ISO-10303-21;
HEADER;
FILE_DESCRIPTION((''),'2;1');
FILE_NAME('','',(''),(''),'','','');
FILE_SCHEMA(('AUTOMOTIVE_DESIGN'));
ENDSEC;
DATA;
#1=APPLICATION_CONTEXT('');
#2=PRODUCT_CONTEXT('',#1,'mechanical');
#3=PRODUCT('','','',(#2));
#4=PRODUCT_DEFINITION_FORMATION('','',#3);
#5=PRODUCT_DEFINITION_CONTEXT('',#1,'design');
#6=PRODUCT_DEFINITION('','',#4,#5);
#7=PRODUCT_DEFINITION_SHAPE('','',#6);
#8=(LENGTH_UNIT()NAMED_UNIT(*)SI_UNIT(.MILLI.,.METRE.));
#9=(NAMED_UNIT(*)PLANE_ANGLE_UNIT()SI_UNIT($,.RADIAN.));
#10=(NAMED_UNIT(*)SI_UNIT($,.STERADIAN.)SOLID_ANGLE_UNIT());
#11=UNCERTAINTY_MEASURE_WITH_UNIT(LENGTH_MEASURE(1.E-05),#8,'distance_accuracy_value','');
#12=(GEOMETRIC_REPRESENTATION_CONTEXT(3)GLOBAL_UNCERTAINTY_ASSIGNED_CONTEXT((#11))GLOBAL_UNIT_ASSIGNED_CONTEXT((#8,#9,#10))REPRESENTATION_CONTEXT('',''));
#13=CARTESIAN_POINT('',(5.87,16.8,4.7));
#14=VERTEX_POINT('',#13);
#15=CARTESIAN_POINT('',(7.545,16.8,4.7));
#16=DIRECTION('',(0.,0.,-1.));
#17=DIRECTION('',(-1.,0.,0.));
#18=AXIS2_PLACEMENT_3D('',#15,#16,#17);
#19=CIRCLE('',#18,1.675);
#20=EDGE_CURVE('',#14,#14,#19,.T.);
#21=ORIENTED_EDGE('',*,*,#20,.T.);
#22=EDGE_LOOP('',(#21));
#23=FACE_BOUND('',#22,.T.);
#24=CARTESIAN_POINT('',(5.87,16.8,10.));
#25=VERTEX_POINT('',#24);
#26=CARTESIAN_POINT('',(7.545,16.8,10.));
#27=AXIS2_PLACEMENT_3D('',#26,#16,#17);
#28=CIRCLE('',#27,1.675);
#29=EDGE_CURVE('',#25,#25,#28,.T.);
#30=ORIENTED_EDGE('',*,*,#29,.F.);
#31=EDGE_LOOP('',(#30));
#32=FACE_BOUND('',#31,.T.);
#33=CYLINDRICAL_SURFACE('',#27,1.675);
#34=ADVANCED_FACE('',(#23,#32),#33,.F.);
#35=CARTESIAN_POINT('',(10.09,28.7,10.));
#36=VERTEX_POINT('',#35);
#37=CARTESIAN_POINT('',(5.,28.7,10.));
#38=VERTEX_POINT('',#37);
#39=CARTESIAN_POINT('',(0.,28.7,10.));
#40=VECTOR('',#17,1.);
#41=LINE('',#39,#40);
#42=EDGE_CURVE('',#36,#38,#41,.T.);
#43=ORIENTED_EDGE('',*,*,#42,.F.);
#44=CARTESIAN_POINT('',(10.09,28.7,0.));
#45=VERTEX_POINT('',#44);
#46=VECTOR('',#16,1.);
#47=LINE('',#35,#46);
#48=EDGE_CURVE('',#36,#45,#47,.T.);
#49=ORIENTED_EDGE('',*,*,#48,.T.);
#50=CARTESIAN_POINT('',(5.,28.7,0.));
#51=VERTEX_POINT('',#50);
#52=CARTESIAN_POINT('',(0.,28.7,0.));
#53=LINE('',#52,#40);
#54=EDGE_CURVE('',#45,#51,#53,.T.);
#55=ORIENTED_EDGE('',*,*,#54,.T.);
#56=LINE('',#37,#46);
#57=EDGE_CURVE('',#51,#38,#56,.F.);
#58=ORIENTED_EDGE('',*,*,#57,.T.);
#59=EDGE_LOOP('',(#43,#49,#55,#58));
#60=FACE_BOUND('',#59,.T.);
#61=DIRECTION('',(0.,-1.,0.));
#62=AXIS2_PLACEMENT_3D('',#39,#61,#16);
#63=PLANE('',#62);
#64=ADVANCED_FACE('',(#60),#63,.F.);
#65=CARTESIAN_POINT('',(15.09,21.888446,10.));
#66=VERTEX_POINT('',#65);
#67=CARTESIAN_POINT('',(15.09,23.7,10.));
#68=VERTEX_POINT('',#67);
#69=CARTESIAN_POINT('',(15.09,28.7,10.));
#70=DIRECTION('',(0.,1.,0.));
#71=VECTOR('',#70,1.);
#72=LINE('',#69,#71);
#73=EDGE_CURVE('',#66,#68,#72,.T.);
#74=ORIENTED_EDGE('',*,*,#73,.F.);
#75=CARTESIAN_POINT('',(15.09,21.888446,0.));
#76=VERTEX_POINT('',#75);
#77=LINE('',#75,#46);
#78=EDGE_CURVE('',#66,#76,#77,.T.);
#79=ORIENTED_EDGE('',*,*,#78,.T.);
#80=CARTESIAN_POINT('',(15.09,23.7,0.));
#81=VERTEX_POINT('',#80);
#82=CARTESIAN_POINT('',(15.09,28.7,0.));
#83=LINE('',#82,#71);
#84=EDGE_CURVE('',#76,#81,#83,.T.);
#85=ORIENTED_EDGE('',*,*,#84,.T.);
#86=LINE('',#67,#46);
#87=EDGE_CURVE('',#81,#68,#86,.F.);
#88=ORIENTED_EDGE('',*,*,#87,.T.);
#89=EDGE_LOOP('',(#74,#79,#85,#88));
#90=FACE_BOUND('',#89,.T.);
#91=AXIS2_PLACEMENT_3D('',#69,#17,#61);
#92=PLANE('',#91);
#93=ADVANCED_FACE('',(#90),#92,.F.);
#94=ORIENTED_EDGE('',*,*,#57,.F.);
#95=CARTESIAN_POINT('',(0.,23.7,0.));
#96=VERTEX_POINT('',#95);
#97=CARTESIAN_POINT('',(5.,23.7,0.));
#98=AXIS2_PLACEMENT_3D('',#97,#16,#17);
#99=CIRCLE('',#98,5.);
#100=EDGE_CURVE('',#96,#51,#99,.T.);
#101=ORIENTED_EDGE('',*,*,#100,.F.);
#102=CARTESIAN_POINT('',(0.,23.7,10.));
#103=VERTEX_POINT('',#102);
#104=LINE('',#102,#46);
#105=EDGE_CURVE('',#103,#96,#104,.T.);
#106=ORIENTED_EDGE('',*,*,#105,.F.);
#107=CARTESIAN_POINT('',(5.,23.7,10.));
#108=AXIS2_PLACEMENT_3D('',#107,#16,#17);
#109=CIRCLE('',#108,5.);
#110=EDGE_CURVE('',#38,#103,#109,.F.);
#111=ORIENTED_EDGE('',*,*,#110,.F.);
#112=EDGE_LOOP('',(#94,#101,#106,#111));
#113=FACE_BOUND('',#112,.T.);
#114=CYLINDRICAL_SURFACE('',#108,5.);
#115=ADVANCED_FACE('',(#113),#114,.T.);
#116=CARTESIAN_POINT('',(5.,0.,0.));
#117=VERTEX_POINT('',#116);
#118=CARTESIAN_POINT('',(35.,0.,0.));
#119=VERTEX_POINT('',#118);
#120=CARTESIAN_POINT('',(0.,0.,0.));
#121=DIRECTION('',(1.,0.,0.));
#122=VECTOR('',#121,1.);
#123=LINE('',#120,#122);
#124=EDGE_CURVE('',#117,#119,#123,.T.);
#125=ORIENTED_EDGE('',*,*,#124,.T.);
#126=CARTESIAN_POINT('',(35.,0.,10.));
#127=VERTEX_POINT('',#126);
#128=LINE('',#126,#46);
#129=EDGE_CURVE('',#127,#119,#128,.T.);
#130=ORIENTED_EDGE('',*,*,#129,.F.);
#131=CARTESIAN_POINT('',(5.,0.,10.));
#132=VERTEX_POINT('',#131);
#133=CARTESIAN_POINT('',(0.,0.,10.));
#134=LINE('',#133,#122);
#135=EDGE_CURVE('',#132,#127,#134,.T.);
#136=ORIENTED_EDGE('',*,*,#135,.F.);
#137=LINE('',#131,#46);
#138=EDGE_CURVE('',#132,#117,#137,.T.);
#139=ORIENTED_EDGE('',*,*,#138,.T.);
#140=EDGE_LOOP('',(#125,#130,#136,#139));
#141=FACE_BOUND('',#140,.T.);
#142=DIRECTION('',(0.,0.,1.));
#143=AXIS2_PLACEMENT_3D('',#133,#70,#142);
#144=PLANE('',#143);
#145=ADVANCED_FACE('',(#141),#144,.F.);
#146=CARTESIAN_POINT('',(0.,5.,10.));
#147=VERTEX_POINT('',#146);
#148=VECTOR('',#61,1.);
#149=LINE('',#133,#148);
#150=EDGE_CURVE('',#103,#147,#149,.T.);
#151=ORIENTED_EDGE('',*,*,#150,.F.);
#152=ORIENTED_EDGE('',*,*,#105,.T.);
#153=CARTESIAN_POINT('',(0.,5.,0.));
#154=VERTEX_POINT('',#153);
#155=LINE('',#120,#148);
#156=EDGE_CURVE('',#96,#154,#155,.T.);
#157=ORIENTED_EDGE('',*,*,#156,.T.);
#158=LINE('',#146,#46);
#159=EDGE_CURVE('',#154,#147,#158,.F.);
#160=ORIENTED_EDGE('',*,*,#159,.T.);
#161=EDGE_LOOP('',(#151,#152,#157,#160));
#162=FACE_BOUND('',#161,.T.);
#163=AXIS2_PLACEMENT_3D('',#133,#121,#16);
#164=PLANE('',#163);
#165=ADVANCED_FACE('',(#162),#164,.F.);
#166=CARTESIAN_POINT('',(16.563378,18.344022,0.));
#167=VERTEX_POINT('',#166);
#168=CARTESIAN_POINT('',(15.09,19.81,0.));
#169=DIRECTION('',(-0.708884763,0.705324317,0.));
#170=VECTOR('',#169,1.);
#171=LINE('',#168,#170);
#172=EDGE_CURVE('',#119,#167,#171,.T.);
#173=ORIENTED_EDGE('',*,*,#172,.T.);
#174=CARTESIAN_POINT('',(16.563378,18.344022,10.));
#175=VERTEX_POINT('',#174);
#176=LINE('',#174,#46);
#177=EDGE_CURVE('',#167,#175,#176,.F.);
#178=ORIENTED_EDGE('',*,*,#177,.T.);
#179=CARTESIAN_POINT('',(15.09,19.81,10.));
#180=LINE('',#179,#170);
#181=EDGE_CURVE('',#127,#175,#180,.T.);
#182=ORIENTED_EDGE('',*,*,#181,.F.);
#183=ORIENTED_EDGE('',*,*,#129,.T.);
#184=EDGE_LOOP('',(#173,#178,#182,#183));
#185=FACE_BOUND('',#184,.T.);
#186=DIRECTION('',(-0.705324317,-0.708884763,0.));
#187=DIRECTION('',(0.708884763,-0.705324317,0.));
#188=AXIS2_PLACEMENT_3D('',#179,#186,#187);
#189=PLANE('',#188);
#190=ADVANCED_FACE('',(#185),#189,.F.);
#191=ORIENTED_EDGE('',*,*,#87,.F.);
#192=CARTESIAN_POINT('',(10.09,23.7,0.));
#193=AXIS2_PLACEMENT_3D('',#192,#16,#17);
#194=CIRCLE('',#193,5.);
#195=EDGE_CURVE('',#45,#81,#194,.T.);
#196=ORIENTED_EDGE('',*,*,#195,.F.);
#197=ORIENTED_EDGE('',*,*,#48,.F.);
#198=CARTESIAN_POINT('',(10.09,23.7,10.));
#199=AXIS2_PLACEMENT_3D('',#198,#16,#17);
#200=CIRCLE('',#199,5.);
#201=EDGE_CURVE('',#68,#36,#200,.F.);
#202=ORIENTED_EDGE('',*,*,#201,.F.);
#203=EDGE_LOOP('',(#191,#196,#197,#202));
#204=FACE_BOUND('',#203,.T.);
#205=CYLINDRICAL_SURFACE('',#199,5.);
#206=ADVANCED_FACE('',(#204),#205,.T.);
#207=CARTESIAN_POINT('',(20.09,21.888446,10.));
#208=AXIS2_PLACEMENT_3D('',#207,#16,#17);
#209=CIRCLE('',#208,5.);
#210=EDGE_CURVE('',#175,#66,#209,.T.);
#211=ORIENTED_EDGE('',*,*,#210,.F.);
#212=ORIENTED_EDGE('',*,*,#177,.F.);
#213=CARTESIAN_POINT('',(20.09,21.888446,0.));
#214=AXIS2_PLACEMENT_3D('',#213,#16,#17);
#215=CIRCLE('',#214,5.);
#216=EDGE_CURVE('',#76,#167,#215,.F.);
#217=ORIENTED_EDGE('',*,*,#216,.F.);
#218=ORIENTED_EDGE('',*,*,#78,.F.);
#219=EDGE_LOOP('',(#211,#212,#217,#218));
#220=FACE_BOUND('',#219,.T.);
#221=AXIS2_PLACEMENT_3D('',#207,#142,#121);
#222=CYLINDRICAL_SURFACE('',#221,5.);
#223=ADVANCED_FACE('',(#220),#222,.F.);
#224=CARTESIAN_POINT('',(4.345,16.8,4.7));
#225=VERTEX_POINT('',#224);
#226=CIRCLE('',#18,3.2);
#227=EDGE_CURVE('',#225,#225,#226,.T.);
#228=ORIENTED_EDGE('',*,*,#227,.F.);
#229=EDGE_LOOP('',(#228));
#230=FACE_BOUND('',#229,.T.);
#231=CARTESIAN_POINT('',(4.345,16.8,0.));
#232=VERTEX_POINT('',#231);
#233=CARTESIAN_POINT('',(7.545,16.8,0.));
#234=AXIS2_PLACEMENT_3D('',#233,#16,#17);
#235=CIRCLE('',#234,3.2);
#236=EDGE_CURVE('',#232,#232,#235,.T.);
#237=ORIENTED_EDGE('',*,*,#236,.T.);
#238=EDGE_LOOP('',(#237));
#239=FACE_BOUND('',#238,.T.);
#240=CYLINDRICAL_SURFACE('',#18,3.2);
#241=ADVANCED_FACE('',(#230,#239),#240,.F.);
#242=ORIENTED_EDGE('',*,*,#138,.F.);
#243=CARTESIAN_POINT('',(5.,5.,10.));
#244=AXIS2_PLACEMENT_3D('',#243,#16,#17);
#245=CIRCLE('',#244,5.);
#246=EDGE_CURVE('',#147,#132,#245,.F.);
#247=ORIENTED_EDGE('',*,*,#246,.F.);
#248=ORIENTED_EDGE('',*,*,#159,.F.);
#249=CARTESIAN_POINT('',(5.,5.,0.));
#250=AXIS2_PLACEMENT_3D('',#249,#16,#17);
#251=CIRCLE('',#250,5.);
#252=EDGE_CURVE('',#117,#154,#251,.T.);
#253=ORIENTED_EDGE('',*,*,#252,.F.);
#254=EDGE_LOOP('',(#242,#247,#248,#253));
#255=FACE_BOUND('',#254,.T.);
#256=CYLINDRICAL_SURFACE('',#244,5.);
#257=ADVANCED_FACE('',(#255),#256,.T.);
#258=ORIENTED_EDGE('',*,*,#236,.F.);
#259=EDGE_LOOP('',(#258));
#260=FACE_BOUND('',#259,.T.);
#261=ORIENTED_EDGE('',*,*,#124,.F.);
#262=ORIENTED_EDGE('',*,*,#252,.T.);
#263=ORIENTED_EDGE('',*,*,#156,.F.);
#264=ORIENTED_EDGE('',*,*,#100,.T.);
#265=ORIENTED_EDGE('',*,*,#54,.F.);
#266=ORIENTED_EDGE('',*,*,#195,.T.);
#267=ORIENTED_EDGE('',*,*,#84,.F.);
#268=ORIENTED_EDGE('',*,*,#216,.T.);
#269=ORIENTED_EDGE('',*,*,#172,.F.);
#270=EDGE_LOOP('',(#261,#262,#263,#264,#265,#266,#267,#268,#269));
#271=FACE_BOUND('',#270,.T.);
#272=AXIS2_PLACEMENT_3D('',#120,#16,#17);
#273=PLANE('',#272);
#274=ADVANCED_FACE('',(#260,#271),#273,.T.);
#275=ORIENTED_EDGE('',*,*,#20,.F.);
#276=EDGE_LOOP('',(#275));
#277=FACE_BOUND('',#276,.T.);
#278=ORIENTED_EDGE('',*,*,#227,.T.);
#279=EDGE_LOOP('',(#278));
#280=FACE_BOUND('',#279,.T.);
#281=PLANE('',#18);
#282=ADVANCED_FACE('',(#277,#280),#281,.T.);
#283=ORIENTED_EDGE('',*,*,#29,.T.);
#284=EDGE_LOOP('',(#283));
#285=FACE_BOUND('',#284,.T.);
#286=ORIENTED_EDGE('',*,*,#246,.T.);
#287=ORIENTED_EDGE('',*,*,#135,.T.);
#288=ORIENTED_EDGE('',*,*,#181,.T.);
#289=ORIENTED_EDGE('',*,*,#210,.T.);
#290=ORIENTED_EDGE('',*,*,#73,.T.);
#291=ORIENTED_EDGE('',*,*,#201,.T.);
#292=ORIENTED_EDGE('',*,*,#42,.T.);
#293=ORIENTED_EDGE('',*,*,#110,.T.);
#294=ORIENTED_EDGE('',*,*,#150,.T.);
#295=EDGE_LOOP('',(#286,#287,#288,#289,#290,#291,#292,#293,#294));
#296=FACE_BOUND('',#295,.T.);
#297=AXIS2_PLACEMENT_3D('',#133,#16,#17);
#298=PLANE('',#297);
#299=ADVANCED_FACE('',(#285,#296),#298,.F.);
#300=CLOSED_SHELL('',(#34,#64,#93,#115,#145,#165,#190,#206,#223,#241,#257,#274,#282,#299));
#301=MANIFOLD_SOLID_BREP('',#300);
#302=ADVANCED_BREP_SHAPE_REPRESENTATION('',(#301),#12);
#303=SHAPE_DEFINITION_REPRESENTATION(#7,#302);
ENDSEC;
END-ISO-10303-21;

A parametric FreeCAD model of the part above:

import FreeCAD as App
import Part
import Sketcher

V = App.Vector
Q = App.Units.Quantity


def edges_at(feature, points):
    """Names of the edges that pass closest to the given points."""
    edges = feature.Shape.Edges
    near = lambda p: min(range(len(edges)), key=lambda i: edges[i].distToShape(Part.Vertex(*p))[0])
    return sorted({f"Edge{near(p) + 1}" for p in points})

doc = App.newDocument("Part")
body = doc.addObject("PartDesign::Body", "Body")

# Sketch on XY plane
sketch1 = body.newObject("Sketcher::SketchObject", "Sketch")
sketch1.AttachmentSupport = (doc.getObject("XY_Plane"), [""])
sketch1.MapMode = "FlatFace"
sketch1.addGeometry(Part.LineSegment(V(0, 0, 0), V(35, 0, 0)), False)
sketch1.addGeometry(Part.LineSegment(V(35, 0, 0), V(15, 20, 0)), False)
sketch1.addGeometry(Part.LineSegment(V(15, 20, 0), V(15, 29, 0)), False)
sketch1.addGeometry(Part.LineSegment(V(15, 29, 0), V(0, 29, 0)), False)
sketch1.addGeometry(Part.LineSegment(V(0, 29, 0), V(0, 0, 0)), False)
sketch1.addConstraint(Sketcher.Constraint("Coincident", 0, 2, 1, 1))
sketch1.addConstraint(Sketcher.Constraint("Coincident", 1, 2, 2, 1))
sketch1.addConstraint(Sketcher.Constraint("Coincident", 2, 2, 3, 1))
sketch1.addConstraint(Sketcher.Constraint("Coincident", 3, 2, 4, 1))
sketch1.addConstraint(Sketcher.Constraint("Coincident", 4, 2, 0, 1))
sketch1.addConstraint(Sketcher.Constraint("Horizontal", 0))
sketch1.addConstraint(Sketcher.Constraint("Vertical", 2))
sketch1.addConstraint(Sketcher.Constraint("Horizontal", 3))
sketch1.addConstraint(Sketcher.Constraint("Vertical", 4))
sketch1.addConstraint(Sketcher.Constraint("Coincident", 4, 2, -1, 1))
sketch1.addConstraint(Sketcher.Constraint("DistanceX", 0, 1, 0, 2, Q("35 mm")))
sketch1.addConstraint(Sketcher.Constraint("DistanceY", 4, 2, 4, 1, Q("28.7 mm")))
sketch1.addConstraint(Sketcher.Constraint("DistanceX", 3, 2, 3, 1, Q("15.09 mm")))
sketch1.addConstraint(Sketcher.Constraint("DistanceY", 2, 1, 2, 2, Q("8.89 mm")))
pad1 = body.newObject("PartDesign::Pad", "Pad")
pad1.Profile = sketch1
pad1.Length = 10
doc.recompute()

fillet = body.newObject("PartDesign::Fillet", "Fillet")
fillet.Base = (pad1, edges_at(pad1, [
    (0, 28.7, 5),
    (15.09, 28.7, 5),
    (15.09, 19.81, 5),
    (0, 0, 5),
]))
fillet.Radius = 5

# Sketch on XY plane
sketch2 = body.newObject("Sketcher::SketchObject", "Sketch001")
sketch2.AttachmentSupport = (doc.getObject("XY_Plane"), [""])
sketch2.MapMode = "FlatFace"
sketch2.AttachmentOffset = App.Placement(V(0, 0, 10), App.Rotation())
sketch2.addGeometry(Part.Circle(V(7.5, 16.8, 0), V(0, 0, 1), 3.2), False)
sketch2.addConstraint(Sketcher.Constraint("Diameter", 0, Q("6.4 mm")))
sketch2.addConstraint(Sketcher.Constraint("DistanceY", -1, 1, 0, 3, Q("16.8 mm")))
sketch2.addConstraint(Sketcher.Constraint("DistanceX", -1, 1, 0, 3, Q("7.545 mm")))
pocket1 = body.newObject("PartDesign::Pocket", "Pocket")
pocket1.Profile = sketch2
pocket1.Length = 4.7

# Sketch on XY plane
sketch3 = body.newObject("Sketcher::SketchObject", "Sketch002")
sketch3.AttachmentSupport = (doc.getObject("XY_Plane"), [""])
sketch3.MapMode = "FlatFace"
sketch3.AttachmentOffset = App.Placement(V(0, 0, 10), App.Rotation())
sketch3.addGeometry(Part.Circle(V(7.5, 16.8, 0), V(0, 0, 1), 1.6), False)
sketch3.addConstraint(Sketcher.Constraint("Diameter", 0, Q("3.2 mm")))
sketch3.addConstraint(Sketcher.Constraint("DistanceY", -1, 1, 0, 3, Q("16.8 mm")))
sketch3.addConstraint(Sketcher.Constraint("DistanceX", -1, 1, 0, 3, Q("7.545 mm")))
pocket2 = body.newObject("PartDesign::Pocket", "Pocket001")
pocket2.Profile = sketch3
pocket2.Length = 10

# Sketch on XY plane
sketch4 = body.newObject("Sketcher::SketchObject", "Sketch003")
sketch4.AttachmentSupport = (doc.getObject("XY_Plane"), [""])
sketch4.MapMode = "FlatFace"
sketch4.addGeometry(Part.Circle(V(7.5, 16.8, 0), V(0, 0, 1), 3.2), False)
sketch4.addConstraint(Sketcher.Constraint("Diameter", 0, Q("6.4 mm")))
sketch4.addConstraint(Sketcher.Constraint("DistanceY", -1, 1, 0, 3, Q("16.8 mm")))
sketch4.addConstraint(Sketcher.Constraint("DistanceX", -1, 1, 0, 3, Q("7.545 mm")))
pocket3 = body.newObject("PartDesign::Pocket", "Pocket002")
pocket3.Profile = sketch4
pocket3.Length = 4.7
pocket3.Reversed = True

# Sketch on XY plane
sketch5 = body.newObject("Sketcher::SketchObject", "Sketch004")
sketch5.AttachmentSupport = (doc.getObject("XY_Plane"), [""])
sketch5.MapMode = "FlatFace"
sketch5.AttachmentOffset = App.Placement(V(0, 0, 10), App.Rotation())
sketch5.addGeometry(Part.Circle(V(7.5, 16.8, 0), V(0, 0, 1), 3.2), False)
sketch5.addConstraint(Sketcher.Constraint("Diameter", 0, Q("6.4 mm")))
sketch5.addConstraint(Sketcher.Constraint("DistanceY", -1, 1, 0, 3, Q("16.8 mm")))
sketch5.addConstraint(Sketcher.Constraint("DistanceX", -1, 1, 0, 3, Q("7.545 mm")))
pad2 = body.newObject("PartDesign::Pad", "Pad001")
pad2.Profile = sketch5
pad2.Length = 4.7
pad2.Reversed = True

# Sketch on XY plane
sketch6 = body.newObject("Sketcher::SketchObject", "Sketch005")
sketch6.AttachmentSupport = (doc.getObject("XY_Plane"), [""])
sketch6.MapMode = "FlatFace"
sketch6.addGeometry(Part.Circle(V(7.5, 16.8, 0), V(0, 0, 1), 1.7), False)
sketch6.addConstraint(Sketcher.Constraint("Diameter", 0, Q("3.35 mm")))
sketch6.addConstraint(Sketcher.Constraint("DistanceY", -1, 1, 0, 3, Q("16.8 mm")))
sketch6.addConstraint(Sketcher.Constraint("DistanceX", -1, 1, 0, 3, Q("7.545 mm")))
pocket4 = body.newObject("PartDesign::Pocket", "Pocket003")
pocket4.Profile = sketch6
pocket4.Length = 10
pocket4.Reversed = True

doc.recompute()
